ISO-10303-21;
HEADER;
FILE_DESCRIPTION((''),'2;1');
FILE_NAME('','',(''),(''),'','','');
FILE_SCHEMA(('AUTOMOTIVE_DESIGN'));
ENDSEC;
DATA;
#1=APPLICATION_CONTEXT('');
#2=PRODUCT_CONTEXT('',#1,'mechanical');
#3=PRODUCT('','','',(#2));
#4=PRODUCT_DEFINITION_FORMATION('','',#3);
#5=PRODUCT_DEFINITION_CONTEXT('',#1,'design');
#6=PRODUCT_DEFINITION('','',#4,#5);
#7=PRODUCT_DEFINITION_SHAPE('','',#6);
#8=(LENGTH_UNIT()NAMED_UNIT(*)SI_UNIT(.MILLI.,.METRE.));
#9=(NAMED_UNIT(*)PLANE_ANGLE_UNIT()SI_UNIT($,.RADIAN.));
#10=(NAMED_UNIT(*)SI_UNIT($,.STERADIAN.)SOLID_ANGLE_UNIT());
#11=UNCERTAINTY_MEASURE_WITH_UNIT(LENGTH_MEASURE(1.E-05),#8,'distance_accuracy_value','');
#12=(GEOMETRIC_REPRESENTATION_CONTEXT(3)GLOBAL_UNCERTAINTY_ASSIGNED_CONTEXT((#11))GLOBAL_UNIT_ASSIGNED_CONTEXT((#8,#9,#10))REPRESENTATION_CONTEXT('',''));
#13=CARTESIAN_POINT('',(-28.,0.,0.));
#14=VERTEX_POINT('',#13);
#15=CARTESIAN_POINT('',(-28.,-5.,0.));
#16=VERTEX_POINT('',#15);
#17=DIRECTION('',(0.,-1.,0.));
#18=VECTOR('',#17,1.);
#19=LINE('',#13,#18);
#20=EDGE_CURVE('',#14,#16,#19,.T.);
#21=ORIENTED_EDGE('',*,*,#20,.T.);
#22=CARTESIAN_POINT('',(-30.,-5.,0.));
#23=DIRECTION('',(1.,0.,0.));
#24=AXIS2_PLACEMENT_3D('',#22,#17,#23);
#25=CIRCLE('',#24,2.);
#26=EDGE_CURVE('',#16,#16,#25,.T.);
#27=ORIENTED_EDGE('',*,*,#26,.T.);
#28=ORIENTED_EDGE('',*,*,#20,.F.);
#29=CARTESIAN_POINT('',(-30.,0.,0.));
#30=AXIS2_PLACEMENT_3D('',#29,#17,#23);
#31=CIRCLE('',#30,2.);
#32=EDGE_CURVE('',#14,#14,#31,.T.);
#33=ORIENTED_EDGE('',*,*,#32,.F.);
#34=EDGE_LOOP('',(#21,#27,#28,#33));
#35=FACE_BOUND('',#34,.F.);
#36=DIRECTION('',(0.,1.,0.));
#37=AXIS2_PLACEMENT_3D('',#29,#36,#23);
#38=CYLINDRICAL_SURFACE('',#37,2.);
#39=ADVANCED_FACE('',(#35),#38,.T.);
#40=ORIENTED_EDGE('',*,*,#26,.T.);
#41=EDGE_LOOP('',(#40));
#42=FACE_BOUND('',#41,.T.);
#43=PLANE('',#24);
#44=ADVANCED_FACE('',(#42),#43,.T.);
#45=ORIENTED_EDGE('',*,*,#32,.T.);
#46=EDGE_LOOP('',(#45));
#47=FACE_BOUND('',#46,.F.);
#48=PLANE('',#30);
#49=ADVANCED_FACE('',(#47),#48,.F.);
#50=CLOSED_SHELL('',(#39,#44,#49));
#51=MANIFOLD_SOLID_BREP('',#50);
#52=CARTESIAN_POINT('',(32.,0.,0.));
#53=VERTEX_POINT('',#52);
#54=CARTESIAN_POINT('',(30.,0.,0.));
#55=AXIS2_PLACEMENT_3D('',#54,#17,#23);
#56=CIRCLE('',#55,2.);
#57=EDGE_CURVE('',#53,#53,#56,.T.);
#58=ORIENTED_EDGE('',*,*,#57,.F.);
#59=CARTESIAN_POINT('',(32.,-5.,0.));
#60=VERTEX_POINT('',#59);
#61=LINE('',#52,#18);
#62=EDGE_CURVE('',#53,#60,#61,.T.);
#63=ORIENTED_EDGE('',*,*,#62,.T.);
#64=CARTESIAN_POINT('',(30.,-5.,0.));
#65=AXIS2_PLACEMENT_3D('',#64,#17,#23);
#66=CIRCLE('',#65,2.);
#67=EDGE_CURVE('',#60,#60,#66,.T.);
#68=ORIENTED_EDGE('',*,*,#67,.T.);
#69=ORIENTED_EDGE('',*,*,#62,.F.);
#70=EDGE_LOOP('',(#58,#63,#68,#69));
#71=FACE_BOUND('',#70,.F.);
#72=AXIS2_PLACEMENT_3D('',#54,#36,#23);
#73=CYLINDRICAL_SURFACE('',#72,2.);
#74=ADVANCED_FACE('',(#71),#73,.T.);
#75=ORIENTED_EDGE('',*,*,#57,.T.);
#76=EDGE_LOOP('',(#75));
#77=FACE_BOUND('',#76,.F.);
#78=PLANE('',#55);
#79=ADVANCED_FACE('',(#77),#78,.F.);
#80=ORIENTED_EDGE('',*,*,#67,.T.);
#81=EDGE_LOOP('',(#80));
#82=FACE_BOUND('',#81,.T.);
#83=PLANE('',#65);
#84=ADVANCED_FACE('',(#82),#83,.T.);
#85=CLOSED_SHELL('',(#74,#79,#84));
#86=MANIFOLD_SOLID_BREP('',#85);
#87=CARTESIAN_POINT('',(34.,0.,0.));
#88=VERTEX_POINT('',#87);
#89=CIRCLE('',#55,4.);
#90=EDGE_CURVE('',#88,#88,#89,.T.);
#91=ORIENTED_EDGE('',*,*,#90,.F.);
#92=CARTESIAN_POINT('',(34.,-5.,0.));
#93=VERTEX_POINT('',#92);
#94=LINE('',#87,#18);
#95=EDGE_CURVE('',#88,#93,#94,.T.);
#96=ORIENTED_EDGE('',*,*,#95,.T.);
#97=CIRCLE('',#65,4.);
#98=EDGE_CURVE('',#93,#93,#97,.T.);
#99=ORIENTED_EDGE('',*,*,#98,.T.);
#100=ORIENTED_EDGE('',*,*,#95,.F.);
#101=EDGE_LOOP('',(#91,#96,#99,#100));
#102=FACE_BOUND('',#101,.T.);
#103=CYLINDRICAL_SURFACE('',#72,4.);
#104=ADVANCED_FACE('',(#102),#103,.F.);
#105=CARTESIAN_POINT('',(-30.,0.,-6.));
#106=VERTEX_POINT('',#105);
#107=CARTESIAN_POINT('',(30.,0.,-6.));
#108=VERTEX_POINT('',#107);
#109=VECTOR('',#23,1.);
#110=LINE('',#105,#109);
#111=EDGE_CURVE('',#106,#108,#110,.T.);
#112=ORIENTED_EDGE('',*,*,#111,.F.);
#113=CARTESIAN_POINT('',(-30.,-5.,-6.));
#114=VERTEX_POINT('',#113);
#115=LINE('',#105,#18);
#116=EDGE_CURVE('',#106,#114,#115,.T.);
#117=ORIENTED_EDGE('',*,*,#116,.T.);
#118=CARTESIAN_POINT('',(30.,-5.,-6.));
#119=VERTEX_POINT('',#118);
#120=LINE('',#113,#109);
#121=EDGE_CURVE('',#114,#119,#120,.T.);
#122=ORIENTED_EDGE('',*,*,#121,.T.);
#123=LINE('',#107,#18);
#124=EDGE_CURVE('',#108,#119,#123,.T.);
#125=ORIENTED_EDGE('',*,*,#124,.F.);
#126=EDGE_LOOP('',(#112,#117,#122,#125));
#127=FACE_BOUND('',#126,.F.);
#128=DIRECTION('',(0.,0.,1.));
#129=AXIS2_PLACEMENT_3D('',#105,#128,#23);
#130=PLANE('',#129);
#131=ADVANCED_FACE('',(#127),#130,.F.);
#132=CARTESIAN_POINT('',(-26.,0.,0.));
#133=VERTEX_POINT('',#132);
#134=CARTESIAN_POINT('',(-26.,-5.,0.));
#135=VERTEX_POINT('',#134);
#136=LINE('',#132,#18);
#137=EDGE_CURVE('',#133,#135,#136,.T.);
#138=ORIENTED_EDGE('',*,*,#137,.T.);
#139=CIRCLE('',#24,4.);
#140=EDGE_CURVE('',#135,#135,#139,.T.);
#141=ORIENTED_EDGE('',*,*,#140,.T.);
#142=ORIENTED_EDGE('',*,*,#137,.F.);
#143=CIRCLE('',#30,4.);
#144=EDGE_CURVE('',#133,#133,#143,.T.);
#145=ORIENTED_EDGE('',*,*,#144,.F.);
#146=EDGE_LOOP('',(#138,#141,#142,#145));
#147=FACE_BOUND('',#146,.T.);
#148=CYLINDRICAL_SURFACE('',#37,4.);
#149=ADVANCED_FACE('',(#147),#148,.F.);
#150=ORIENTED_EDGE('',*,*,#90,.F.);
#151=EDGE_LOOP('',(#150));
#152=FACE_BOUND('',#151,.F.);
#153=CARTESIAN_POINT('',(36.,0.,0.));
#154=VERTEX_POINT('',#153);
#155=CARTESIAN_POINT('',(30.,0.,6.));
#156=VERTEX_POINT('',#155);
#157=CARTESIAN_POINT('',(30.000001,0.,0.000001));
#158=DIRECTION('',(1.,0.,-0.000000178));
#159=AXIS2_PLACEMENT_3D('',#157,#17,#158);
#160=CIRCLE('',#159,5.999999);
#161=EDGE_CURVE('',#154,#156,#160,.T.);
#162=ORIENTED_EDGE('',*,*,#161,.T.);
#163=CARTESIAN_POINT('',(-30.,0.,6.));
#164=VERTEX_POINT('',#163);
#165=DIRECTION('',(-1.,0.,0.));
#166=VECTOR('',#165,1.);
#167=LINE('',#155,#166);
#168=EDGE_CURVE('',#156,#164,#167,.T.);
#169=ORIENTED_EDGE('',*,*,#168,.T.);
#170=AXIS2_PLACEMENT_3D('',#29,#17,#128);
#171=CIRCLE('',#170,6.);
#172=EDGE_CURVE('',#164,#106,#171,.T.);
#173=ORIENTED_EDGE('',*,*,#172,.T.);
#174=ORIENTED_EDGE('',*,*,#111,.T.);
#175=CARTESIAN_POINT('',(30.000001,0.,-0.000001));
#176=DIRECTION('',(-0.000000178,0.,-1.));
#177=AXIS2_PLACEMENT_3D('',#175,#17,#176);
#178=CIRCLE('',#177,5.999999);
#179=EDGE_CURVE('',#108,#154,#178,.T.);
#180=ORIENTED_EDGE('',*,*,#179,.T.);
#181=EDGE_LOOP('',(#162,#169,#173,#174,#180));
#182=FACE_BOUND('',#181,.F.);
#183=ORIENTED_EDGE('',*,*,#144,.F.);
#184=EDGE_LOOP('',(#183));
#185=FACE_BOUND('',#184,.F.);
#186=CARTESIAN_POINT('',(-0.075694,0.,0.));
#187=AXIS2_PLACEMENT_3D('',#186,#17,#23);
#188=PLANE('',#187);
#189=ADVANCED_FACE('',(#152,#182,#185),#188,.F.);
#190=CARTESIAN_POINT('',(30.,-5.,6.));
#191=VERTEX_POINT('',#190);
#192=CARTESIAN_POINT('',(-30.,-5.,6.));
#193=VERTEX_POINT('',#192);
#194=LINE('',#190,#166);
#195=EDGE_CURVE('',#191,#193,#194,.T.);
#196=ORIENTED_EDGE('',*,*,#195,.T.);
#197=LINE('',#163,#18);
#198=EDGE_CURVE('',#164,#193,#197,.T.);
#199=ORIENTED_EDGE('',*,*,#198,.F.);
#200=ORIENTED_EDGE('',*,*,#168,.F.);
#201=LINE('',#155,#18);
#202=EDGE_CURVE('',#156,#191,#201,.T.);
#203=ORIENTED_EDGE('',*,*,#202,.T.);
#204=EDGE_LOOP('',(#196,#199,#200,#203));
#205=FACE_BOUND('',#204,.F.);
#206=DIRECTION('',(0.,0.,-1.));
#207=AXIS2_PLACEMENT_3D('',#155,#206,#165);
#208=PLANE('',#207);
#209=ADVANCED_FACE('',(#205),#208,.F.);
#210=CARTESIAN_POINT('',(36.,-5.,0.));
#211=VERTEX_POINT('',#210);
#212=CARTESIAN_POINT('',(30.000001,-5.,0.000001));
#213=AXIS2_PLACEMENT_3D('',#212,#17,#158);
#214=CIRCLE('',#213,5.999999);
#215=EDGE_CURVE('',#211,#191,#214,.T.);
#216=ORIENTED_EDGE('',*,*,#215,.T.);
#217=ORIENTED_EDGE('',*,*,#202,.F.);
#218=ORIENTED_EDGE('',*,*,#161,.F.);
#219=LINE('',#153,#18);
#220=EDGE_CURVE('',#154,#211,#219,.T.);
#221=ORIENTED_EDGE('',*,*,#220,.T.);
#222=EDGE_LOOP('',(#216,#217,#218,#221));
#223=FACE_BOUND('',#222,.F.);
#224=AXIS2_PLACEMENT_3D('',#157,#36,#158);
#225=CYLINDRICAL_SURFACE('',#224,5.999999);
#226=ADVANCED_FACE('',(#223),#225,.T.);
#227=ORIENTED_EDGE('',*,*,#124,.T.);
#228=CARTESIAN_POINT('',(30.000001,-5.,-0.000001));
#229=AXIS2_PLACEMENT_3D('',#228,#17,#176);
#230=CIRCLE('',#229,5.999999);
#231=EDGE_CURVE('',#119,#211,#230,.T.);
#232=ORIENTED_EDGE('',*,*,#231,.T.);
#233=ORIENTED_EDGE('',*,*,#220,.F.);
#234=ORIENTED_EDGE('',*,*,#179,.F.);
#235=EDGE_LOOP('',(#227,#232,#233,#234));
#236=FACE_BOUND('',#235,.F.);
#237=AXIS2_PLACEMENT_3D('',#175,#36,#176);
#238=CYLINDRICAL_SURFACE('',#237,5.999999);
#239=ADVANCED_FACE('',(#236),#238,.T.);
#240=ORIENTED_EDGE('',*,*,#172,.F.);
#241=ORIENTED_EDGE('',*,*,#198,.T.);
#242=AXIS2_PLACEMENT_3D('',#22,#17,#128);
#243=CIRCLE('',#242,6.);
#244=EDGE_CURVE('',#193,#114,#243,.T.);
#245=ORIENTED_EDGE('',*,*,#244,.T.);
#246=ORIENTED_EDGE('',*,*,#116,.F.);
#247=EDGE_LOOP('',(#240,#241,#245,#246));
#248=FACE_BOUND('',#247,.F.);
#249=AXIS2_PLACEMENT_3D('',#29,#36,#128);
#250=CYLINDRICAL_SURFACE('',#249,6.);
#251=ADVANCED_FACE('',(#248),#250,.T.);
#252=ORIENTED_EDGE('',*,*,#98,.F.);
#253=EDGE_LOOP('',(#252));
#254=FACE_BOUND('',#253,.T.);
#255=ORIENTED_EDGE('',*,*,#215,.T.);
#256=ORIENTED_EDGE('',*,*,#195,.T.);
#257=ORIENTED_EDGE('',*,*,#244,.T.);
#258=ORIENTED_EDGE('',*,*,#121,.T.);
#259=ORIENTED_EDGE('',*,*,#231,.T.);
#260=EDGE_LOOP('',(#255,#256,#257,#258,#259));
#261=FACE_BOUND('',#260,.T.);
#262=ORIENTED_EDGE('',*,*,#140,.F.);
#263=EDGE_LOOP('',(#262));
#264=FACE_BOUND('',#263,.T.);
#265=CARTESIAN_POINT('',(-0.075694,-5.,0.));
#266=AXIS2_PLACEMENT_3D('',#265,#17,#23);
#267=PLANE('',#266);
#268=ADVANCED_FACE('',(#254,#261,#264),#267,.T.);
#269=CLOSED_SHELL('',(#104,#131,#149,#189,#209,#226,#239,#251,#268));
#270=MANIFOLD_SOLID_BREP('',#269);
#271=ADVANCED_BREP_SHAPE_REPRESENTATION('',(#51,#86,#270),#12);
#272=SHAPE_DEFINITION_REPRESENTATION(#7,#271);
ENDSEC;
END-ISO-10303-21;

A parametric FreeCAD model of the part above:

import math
import FreeCAD as App
import Part
import Sketcher

doc = App.newDocument("Part")
params = doc.addObject("Spreadsheet::Sheet", "Params")
for row, (alias, value) in enumerate([
    ("sketch1_diameter", "8 mm"),
    ("sketch1_diameter2", "4 mm"),
    ("sketch1_radius", "6 mm"),
    ("sketch1_width", "60 mm"),
    ("pad1_length", "5 mm"),
], start=1):
    params.set(f"A{row}", alias)
    params.set(f"B{row}", "=" + value)
    params.setAlias(f"B{row}", alias)

body = doc.addObject("PartDesign::Body", "Body")
body.AllowCompound = True

# Sketch on XZ plane
sketch1 = doc.addObject("Sketcher::SketchObject", "Sketch")
body.addObject(sketch1)
sketch1.AttachmentSupport = (doc.XZ_Plane, [""])
sketch1.MapMode = "FlatFace"
sketch1.addGeometry([
    Part.LineSegment(App.Vector(30, 6, 0), App.Vector(-30, 6, 0)),  # 0
    Part.ArcOfCircle(Part.Circle(App.Vector(-30, 0, 0), App.Vector(0, 0, 1), 6), math.radians(90), math.radians(270)),  # 1
    Part.LineSegment(App.Vector(-30, -6, 0), App.Vector(30, -6, 0)),  # 2
    Part.ArcOfCircle(Part.Circle(App.Vector(30, 0, 0), App.Vector(0, 0, 1), 6), math.radians(-90), math.radians(0)),  # 3
    Part.ArcOfCircle(Part.Circle(App.Vector(30, 0, 0), App.Vector(0, 0, 1), 6), math.radians(0), math.radians(90)),  # 4
    Part.Circle(App.Vector(-30, 0, 0), App.Vector(0, 0, 1), 4),  # 5
    Part.Circle(App.Vector(30, 0, 0), App.Vector(0, 0, 1), 4),  # 6
    Part.Circle(App.Vector(30, 0, 0), App.Vector(0, 0, 1), 2),  # 7
    Part.Circle(App.Vector(-30, 0, 0), App.Vector(0, 0, 1), 2),  # 8
], False)
sketch1.addConstraint([
    Sketcher.Constraint("Tangent", 0, 2, 1, 1),
    Sketcher.Constraint("Tangent", 1, 2, 2, 1),
    Sketcher.Constraint("Tangent", 2, 2, 3, 1),
    Sketcher.Constraint("Tangent", 3, 2, 4, 1),
    Sketcher.Constraint("Tangent", 4, 2, 0, 1),
    Sketcher.Constraint("Horizontal", 0),
    Sketcher.Constraint("Horizontal", 2),
    Sketcher.Constraint("Coincident", 5, 3, 1, 3),
    Sketcher.Constraint("Coincident", 6, 3, 3, 3),
    Sketcher.Constraint("Coincident", 7, 3, 3, 3),
    Sketcher.Constraint("Coincident", 8, 3, 1, 3),
    Sketcher.Constraint("Equal", 1, 3),
    Sketcher.Constraint("Equal", 5, 6),
    Sketcher.Constraint("Equal", 7, 8),
    Sketcher.Constraint("Symmetric", 1, 3, 3, 3, -1, 1),
    Sketcher.Constraint("PointOnObject", 3, 2, -1),
    Sketcher.Constraint("Diameter", 5, 8.0),
    Sketcher.Constraint("Diameter", 7, 4.0),
    Sketcher.Constraint("Radius", 1, 6.0),
    Sketcher.Constraint("DistanceX", 0, 2, 0, 1, 60.0),
])
sketch1.setExpression("Constraints[16]", "Params.sketch1_diameter")
sketch1.setExpression("Constraints[17]", "Params.sketch1_diameter2")
sketch1.setExpression("Constraints[18]", "Params.sketch1_radius")
sketch1.setExpression("Constraints[19]", "Params.sketch1_width")
pad1 = doc.addObject("PartDesign::Pad", "Pad")
body.addObject(pad1)
pad1.Profile = sketch1
pad1.setExpression("Length", "Params.pad1_length")

doc.recompute()
